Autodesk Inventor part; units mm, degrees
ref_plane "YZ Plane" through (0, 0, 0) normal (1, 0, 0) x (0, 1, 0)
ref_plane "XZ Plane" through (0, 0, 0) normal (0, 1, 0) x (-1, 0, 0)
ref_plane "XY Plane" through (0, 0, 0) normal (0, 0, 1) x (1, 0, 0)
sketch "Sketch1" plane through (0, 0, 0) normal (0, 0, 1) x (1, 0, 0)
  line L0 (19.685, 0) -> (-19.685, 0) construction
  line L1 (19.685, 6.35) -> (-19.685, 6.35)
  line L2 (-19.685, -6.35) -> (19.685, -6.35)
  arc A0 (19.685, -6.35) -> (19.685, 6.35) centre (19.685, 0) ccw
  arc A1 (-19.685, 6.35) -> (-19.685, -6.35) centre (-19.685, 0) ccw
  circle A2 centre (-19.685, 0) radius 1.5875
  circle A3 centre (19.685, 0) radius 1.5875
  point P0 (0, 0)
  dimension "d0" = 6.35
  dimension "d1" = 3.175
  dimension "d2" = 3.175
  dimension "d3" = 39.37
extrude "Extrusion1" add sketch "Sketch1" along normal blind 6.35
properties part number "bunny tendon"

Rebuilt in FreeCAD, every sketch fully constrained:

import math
import FreeCAD as App
import Part
import Sketcher

V = App.Vector
Q = App.Units.Quantity

doc = App.newDocument("Part")
body = doc.addObject("PartDesign::Body", "Body")

sketch1 = body.newObject("Sketcher::SketchObject", "Sketch")
sketch1.AttachmentSupport = (doc.getObject("XY_Plane"), [""])
sketch1.MapMode = "FlatFace"
sketch1.addGeometry(Part.ArcOfCircle(Part.Circle(V(19.7, 0, 0), V(0, 0, 1), 6.3), math.radians(-90), math.radians(90)), False)
sketch1.addGeometry(Part.LineSegment(V(19.7, 6.3, 0), V(-19.7, 6.3, 0)), False)
sketch1.addGeometry(Part.ArcOfCircle(Part.Circle(V(-19.7, 0, 0), V(0, 0, 1), 6.3), math.radians(90), math.radians(270)), False)
sketch1.addGeometry(Part.LineSegment(V(-19.7, -6.3, 0), V(19.7, -6.3, 0)), False)
sketch1.addGeometry(Part.Circle(V(-19.7, 0, 0), V(0, 0, 1), 1.6), False)
sketch1.addGeometry(Part.Circle(V(19.7, 0, 0), V(0, 0, 1), 1.6), False)
sketch1.addConstraint(Sketcher.Constraint("Tangent", 0, 2, 1, 1))
sketch1.addConstraint(Sketcher.Constraint("Tangent", 1, 2, 2, 1))
sketch1.addConstraint(Sketcher.Constraint("Tangent", 2, 2, 3, 1))
sketch1.addConstraint(Sketcher.Constraint("Tangent", 3, 2, 0, 1))
sketch1.addConstraint(Sketcher.Constraint("Horizontal", 1))
sketch1.addConstraint(Sketcher.Constraint("Horizontal", 3))
sketch1.addConstraint(Sketcher.Constraint("Coincident", 4, 3, 2, 3))
sketch1.addConstraint(Sketcher.Constraint("Coincident", 5, 3, 0, 3))
sketch1.addConstraint(Sketcher.Constraint("Equal", 4, 5))
sketch1.addConstraint(Sketcher.Constraint("Symmetric", 0, 3, 2, 3, -1, 1))
sketch1.addConstraint(Sketcher.Constraint("Radius", 0, Q("0.25 in")))
sketch1.addConstraint(Sketcher.Constraint("Diameter", 4, Q("0.125 in")))
sketch1.addConstraint(Sketcher.Constraint("DistanceX", 1, 2, 1, 1, Q("1.55 in")))
pad1 = body.newObject("PartDesign::Pad", "Pad")
pad1.Profile = sketch1
pad1.Length = Q("0.25 in")

doc.recompute()
